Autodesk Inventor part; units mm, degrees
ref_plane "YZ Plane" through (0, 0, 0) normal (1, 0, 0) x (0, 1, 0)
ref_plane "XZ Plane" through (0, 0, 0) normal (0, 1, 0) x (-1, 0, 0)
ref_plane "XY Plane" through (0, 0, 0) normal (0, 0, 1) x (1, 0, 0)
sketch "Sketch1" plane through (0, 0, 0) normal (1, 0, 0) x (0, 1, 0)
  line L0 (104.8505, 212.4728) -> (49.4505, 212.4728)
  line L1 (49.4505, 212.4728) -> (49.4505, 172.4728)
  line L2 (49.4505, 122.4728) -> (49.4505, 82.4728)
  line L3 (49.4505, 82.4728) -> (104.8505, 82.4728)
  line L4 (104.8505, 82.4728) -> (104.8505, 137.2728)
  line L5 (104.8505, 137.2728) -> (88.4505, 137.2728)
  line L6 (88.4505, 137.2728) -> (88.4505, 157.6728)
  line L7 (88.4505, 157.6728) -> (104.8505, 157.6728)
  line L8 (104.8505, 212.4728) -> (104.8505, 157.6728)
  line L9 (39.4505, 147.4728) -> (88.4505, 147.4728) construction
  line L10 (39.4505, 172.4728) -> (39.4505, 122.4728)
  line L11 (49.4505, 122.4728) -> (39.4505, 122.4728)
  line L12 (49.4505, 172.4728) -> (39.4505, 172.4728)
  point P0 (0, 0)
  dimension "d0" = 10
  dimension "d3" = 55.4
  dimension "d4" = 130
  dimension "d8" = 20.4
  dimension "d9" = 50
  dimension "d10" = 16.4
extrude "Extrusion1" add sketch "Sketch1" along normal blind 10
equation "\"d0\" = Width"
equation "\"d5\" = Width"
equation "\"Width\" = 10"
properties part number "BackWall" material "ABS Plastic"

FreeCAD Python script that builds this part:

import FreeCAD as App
import Part
import Sketcher

V = App.Vector
Q = App.Units.Quantity


def add_polygon(sketch, points):
    """Adds a closed chain of lines whose ends are joined by coincident constraints."""
    first, n = sketch.GeometryCount, len(points)
    for a, b in zip(points, points[1:] + points[:1]):
        sketch.addGeometry(Part.LineSegment(App.Vector(*a, 0), App.Vector(*b, 0)), False)
    for i in range(n):
        sketch.addConstraint(Sketcher.Constraint("Coincident", first + i, 2, first + (i + 1) % n, 1))

doc = App.newDocument("Part")
body = doc.addObject("PartDesign::Body", "Body")

# Sketch on YZ plane
sketch1 = body.newObject("Sketcher::SketchObject", "Sketch")
sketch1.AttachmentSupport = (doc.getObject("YZ_Plane"), [""])
sketch1.MapMode = "FlatFace"
add_polygon(sketch1, [(105, 158), (105, 212), (49, 212), (49, 172), (39, 172), (39, 122), (49, 122), (49, 82), (105, 82), (105, 137), (88, 137), (88, 158)])  # lines 0-11
sketch1.addConstraint(Sketcher.Constraint("Vertical", 0))
sketch1.addConstraint(Sketcher.Constraint("Horizontal", 1))
sketch1.addConstraint(Sketcher.Constraint("Vertical", 2))
sketch1.addConstraint(Sketcher.Constraint("Horizontal", 3))
sketch1.addConstraint(Sketcher.Constraint("Vertical", 4))
sketch1.addConstraint(Sketcher.Constraint("Horizontal", 5))
sketch1.addConstraint(Sketcher.Constraint("Vertical", 6))
sketch1.addConstraint(Sketcher.Constraint("Horizontal", 7))
sketch1.addConstraint(Sketcher.Constraint("Vertical", 8))
sketch1.addConstraint(Sketcher.Constraint("Horizontal", 9))
sketch1.addConstraint(Sketcher.Constraint("Vertical", 10))
sketch1.addConstraint(Sketcher.Constraint("Horizontal", 11))
sketch1.addConstraint(Sketcher.Constraint("Vertical", 2, 2, 5, 2))
sketch1.addConstraint(Sketcher.Constraint("Vertical", 0, 2, 7, 2))
sketch1.addConstraint(Sketcher.Constraint("Equal", 2, 6))
sketch1.addConstraint(Sketcher.Constraint("Equal", 0, 8))
sketch1.addConstraint(Sketcher.Constraint("DistanceX", 3, 2, 3, 1, Q("10 mm")))
sketch1.addConstraint(Sketcher.Constraint("DistanceY", 4, 2, 4, 1, Q("50 mm")))
sketch1.addConstraint(Sketcher.Constraint("DistanceX", 1, 2, 1, 1, Q("55.4 mm")))
sketch1.addConstraint(Sketcher.Constraint("DistanceX", 9, 2, 9, 1, Q("16.4 mm")))
sketch1.addConstraint(Sketcher.Constraint("DistanceY", 10, 1, 10, 2, Q("20.4 mm")))
sketch1.addConstraint(Sketcher.Constraint("DistanceY", 6, 2, 1, 2, Q("130 mm")))
sketch1.addConstraint(Sketcher.Constraint("DistanceX", -1, 1, 0, 2, Q("104.8505 mm")))
sketch1.addConstraint(Sketcher.Constraint("DistanceY", -1, 1, 0, 2, Q("212.4728 mm")))
pad1 = body.newObject("PartDesign::Pad", "Pad")
pad1.Profile = sketch1
pad1.Length = 10

doc.recompute()
